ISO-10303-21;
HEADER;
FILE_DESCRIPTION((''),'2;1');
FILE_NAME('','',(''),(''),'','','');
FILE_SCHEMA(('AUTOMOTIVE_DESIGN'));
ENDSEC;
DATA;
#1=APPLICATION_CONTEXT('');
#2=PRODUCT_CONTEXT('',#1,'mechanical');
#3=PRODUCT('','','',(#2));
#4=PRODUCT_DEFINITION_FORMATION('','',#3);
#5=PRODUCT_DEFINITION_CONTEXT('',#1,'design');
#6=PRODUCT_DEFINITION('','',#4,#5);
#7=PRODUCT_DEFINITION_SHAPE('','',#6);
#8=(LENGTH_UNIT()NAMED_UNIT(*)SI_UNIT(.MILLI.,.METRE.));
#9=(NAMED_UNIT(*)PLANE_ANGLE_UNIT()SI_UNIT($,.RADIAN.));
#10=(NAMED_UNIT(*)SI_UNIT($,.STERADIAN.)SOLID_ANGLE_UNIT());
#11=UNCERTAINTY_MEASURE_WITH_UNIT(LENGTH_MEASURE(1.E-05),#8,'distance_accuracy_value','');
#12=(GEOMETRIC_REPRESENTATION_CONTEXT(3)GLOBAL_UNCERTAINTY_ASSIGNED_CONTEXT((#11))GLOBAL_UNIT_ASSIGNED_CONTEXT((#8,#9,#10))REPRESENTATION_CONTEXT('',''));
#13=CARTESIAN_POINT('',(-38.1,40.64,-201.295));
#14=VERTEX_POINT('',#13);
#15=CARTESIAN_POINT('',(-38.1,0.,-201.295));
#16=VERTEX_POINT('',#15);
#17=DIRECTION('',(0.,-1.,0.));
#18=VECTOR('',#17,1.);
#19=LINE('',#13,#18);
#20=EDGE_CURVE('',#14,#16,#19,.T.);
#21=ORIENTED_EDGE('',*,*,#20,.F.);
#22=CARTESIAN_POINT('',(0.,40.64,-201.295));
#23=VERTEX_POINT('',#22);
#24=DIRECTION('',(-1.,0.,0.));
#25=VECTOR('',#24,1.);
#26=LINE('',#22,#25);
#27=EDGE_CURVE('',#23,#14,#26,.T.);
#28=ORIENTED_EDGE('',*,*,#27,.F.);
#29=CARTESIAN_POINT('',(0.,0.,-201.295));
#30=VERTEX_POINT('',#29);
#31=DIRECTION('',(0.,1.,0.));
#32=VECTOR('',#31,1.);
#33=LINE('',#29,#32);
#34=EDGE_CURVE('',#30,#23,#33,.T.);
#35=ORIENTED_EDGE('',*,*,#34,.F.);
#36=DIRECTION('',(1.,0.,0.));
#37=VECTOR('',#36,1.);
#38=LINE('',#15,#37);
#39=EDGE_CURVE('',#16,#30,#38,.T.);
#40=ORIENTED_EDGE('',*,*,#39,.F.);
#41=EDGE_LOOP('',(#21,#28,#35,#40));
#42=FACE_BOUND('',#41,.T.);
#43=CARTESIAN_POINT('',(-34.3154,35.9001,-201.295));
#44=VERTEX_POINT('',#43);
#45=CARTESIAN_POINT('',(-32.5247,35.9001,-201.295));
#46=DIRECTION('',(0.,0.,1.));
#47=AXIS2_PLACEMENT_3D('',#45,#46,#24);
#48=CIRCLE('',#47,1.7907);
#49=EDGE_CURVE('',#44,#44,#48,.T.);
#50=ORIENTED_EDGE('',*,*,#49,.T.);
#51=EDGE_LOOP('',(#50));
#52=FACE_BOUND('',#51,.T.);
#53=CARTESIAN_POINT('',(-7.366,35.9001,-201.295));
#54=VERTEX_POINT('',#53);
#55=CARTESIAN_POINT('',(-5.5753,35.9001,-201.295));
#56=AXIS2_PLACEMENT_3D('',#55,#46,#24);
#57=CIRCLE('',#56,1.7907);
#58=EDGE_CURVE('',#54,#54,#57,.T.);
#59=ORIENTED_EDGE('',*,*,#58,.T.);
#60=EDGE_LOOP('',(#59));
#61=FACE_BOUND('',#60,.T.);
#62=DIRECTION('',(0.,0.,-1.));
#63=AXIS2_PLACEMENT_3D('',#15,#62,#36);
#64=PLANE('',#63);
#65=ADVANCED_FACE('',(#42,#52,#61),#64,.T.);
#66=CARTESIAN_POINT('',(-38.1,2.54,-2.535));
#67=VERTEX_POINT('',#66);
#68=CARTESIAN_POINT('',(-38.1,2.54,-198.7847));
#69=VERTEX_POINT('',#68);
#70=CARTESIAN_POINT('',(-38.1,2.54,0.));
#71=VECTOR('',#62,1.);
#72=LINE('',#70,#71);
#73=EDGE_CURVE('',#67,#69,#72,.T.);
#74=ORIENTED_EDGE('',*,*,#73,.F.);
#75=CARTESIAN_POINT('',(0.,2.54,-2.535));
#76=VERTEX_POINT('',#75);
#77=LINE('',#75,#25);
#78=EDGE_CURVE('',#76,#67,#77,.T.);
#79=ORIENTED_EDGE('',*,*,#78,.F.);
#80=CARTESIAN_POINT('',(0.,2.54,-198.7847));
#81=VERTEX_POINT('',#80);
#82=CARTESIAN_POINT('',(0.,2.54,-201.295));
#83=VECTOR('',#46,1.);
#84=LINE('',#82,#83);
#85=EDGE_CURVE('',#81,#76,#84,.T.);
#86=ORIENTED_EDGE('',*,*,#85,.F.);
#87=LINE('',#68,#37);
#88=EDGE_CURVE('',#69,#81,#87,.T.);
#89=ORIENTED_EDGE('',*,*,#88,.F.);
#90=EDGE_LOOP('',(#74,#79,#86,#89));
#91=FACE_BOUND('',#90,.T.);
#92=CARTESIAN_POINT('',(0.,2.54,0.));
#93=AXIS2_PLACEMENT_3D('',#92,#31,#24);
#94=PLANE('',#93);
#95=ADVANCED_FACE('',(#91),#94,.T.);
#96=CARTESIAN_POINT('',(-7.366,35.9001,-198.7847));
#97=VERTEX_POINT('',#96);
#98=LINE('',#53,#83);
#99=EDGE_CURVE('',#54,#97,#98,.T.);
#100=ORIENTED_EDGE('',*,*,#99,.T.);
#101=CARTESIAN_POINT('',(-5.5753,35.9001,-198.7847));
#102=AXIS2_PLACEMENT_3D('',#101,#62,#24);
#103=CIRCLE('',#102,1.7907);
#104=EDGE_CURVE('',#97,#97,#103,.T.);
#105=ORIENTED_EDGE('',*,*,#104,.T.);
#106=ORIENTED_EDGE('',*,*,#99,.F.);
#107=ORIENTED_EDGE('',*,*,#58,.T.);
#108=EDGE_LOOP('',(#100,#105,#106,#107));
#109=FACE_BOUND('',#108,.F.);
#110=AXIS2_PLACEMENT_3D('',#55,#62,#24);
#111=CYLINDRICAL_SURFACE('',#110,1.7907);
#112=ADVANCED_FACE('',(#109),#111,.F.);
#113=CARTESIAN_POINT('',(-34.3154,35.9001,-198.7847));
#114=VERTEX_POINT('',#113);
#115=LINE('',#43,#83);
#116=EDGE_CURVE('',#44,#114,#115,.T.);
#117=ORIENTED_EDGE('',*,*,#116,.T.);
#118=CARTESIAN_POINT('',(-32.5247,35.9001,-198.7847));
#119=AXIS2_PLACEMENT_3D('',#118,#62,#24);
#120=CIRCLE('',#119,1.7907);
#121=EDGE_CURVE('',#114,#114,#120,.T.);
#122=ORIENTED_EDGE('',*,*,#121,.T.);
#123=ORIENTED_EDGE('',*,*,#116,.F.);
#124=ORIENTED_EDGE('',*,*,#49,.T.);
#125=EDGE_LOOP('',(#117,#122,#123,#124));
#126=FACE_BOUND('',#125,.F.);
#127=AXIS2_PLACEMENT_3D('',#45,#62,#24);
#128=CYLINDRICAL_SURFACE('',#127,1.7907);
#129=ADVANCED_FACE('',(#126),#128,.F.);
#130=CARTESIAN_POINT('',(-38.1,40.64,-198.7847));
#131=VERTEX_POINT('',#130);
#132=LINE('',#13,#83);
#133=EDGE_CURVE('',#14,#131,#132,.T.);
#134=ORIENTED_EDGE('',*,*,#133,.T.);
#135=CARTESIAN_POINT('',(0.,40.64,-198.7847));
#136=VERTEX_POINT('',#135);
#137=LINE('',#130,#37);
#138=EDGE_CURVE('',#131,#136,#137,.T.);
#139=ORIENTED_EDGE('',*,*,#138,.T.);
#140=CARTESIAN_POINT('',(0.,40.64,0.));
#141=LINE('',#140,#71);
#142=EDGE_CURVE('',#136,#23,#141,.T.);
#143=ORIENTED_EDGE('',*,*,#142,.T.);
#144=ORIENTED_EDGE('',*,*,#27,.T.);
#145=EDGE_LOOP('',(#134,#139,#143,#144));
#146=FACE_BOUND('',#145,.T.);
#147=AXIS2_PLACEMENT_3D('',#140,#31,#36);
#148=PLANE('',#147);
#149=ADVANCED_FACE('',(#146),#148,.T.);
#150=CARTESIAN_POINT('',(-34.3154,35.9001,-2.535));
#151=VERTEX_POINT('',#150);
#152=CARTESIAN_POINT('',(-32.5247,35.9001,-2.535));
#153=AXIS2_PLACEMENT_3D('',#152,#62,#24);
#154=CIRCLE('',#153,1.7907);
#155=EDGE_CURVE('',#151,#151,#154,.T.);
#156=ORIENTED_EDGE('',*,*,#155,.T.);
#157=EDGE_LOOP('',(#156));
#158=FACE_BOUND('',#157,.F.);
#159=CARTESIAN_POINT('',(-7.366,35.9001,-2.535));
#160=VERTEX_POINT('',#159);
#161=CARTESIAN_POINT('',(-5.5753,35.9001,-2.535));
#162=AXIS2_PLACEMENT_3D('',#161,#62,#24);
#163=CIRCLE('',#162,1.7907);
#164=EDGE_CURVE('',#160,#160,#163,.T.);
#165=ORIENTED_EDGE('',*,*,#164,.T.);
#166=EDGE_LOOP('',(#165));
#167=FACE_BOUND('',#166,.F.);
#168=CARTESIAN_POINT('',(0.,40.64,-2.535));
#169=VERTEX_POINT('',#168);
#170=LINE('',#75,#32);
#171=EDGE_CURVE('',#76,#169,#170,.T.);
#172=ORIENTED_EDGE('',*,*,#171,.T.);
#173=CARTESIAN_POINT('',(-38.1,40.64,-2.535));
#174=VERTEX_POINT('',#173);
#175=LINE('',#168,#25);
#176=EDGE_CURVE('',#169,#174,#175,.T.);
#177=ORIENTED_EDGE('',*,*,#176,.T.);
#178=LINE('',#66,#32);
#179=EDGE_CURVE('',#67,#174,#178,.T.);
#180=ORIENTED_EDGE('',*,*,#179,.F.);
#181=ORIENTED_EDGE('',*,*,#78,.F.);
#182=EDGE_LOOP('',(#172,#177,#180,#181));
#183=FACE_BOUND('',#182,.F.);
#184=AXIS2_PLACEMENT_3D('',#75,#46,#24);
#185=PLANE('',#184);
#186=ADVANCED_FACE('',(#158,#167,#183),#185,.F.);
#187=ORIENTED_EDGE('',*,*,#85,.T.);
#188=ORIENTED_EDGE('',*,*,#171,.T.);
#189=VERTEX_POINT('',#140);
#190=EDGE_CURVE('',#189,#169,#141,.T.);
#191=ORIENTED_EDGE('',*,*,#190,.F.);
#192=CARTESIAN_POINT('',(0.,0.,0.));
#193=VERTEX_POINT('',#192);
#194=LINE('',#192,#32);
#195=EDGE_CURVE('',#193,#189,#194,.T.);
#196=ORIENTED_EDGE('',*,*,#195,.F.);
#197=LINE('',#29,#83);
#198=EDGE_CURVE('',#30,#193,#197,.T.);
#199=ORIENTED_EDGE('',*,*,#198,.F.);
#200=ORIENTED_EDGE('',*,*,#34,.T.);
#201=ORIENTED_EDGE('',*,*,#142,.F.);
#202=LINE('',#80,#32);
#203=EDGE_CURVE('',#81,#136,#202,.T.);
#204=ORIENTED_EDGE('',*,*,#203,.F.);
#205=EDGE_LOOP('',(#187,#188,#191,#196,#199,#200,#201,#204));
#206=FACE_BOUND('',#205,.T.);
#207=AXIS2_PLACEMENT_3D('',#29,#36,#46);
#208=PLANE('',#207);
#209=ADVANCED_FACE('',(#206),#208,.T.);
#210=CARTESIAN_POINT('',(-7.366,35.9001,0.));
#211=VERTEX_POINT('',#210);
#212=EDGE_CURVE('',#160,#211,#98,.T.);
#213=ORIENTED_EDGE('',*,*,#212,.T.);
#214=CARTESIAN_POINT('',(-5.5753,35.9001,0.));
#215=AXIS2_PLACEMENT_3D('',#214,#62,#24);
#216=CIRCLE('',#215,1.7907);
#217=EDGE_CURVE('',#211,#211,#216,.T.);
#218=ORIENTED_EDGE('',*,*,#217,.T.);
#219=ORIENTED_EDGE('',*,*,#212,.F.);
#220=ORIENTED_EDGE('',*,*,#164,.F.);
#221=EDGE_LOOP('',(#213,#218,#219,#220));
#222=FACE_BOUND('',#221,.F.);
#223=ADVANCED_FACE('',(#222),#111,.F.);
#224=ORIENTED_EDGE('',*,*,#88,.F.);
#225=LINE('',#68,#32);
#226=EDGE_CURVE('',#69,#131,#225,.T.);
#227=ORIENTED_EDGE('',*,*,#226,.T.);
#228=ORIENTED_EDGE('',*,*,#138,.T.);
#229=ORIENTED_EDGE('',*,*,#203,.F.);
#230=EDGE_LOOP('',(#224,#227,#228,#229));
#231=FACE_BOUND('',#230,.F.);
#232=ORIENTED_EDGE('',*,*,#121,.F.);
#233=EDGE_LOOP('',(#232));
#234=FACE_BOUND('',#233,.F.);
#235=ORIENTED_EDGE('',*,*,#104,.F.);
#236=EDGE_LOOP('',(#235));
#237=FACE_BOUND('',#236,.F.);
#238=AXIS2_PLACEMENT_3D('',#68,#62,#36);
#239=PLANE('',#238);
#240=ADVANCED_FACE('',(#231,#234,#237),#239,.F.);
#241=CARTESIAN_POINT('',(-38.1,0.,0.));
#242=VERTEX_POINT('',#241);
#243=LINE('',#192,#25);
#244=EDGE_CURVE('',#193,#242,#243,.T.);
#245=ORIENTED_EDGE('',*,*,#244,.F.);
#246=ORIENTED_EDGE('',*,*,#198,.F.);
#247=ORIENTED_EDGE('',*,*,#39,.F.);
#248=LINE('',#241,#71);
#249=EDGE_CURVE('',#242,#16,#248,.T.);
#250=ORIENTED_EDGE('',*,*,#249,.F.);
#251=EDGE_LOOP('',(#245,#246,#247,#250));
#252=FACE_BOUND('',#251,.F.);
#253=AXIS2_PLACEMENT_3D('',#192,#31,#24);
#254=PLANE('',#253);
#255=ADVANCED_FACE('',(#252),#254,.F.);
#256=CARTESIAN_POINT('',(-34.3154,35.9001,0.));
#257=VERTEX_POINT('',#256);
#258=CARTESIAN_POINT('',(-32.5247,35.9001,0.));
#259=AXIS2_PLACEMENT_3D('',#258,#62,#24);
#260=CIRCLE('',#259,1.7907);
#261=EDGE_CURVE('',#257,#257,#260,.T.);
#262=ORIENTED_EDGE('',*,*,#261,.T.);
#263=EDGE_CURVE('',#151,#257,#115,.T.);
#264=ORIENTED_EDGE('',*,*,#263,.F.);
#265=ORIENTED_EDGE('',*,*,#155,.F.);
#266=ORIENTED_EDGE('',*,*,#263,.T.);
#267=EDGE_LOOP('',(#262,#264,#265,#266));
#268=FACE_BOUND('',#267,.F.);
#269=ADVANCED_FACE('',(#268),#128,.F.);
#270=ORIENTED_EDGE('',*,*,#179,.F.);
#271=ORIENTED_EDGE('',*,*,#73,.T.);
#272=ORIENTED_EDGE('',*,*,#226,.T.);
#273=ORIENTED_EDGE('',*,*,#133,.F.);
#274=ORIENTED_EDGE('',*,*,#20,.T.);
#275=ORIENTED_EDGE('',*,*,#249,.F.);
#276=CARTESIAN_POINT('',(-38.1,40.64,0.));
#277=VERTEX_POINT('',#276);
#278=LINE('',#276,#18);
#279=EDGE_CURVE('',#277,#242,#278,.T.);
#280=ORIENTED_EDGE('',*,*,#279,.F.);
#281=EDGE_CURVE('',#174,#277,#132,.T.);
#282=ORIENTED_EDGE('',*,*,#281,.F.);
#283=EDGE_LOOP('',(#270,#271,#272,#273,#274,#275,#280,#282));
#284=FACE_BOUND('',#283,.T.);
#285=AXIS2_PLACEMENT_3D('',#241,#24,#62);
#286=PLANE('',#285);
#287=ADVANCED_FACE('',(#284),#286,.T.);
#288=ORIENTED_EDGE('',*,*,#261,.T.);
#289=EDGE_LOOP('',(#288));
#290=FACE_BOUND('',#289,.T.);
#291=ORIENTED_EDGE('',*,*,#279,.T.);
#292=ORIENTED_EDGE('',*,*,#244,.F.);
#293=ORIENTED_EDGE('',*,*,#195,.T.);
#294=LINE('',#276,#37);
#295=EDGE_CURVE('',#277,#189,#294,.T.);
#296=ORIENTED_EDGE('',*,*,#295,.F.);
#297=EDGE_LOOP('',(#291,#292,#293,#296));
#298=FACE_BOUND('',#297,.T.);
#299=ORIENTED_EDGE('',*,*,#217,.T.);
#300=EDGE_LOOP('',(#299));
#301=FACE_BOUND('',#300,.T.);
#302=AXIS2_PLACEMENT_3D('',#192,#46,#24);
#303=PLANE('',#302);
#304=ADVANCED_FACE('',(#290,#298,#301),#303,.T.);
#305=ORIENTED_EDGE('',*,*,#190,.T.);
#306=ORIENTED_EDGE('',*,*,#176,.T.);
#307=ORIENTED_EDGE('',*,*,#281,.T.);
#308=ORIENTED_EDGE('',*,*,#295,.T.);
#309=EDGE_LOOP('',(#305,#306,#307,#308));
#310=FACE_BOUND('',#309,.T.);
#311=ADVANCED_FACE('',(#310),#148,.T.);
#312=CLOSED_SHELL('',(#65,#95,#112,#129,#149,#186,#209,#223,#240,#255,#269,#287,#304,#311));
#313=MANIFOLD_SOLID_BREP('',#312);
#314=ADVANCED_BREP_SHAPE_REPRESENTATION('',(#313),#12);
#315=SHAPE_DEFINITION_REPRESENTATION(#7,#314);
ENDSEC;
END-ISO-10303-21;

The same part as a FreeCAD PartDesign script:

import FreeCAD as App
import Part
import Sketcher
Q = App.Units.Quantity

doc = App.newDocument("Part")
params = doc.addObject("Spreadsheet::Sheet", "Params")
for row, (alias, value) in enumerate([
    ("sketch1_width", "1.5 in"),
    ("sketch1_height", "7.925 in"),
    ("pad1_length", "0.1 in"),
    ("sketch2_width", "1.5 in"),
    ("pad2_length", "1.5 in"),
    ("sketch3_diameter", "0.141 in"),
    ("pocket1_length", "9.6875 in"),
], start=1):
    params.set(f"A{row}", alias)
    params.set(f"B{row}", "=" + value)
    params.setAlias(f"B{row}", alias)

body = doc.addObject("PartDesign::Body", "Body")

sketch1 = body.newObject("Sketcher::SketchObject", "Sketch")
sketch1.AttachmentSupport = (doc.getObject("XZ_Plane"), [""])
sketch1.MapMode = "FlatFace"
sketch1.addGeometry([
    Part.LineSegment(App.Vector(-38, 0, 0), App.Vector(0, 0, 0)),
    Part.LineSegment(App.Vector(0, 0, 0), App.Vector(0, -201, 0)),
    Part.LineSegment(App.Vector(0, -201, 0), App.Vector(-38, -201, 0)),
    Part.LineSegment(App.Vector(-38, -201, 0), App.Vector(-38, 0, 0)),
], False)
sketch1.addConstraint([
    Sketcher.Constraint("Coincident", 0, 2, 1, 1),
    Sketcher.Constraint("Coincident", 1, 2, 2, 1),
    Sketcher.Constraint("Coincident", 2, 2, 3, 1),
    Sketcher.Constraint("Coincident", 3, 2, 0, 1),
    Sketcher.Constraint("Horizontal", 0),
    Sketcher.Constraint("Vertical", 1),
    Sketcher.Constraint("Horizontal", 2),
    Sketcher.Constraint("Vertical", 3),
    Sketcher.Constraint("Coincident", 0, 2, -1, 1),
    Sketcher.Constraint("DistanceX", 0, 1, 0, 2, Q("1.5 in")),
    Sketcher.Constraint("DistanceY", 1, 2, 1, 1, Q("7.925 in")),
])
sketch1.setExpression("Constraints[9]", "Params.sketch1_width")
sketch1.setExpression("Constraints[10]", "Params.sketch1_height")
pad1 = body.newObject("PartDesign::Pad", "Pad")
pad1.Profile = sketch1
pad1.setExpression("Length", "Params.pad1_length")
pad1.Reversed = True

sketch2 = body.newObject("Sketcher::SketchObject", "Sketch001")
sketch2.AttachmentSupport = (doc.getObject("XZ_Plane"), [""])
sketch2.MapMode = "FlatFace"
sketch2.AttachmentOffset = App.Placement(App.Vector(0, 0, -0.1 * 25.4), App.Rotation())
sketch2.addGeometry([
    Part.LineSegment(App.Vector(0, -201.3, 0), App.Vector(-38.1, -201.3, 0)),
    Part.LineSegment(App.Vector(-38.1, -201.3, 0), App.Vector(-38.1, -198.8, 0)),
    Part.LineSegment(App.Vector(-38.1, -198.8, 0), App.Vector(0, -198.8, 0)),
    Part.LineSegment(App.Vector(0, -198.8, 0), App.Vector(0, -201.3, 0)),
    Part.LineSegment(App.Vector(0, -2.5, 0), App.Vector(-38.1, -2.5, 0)),
    Part.LineSegment(App.Vector(-38.1, -2.5, 0), App.Vector(-38.1, 0, 0)),
    Part.LineSegment(App.Vector(-38.1, 0, 0), App.Vector(0, 0, 0)),
    Part.LineSegment(App.Vector(0, 0, 0), App.Vector(0, -2.5, 0)),
], False)
sketch2.addConstraint([
    Sketcher.Constraint("Coincident", 0, 2, 1, 1),
    Sketcher.Constraint("Coincident", 1, 2, 2, 1),
    Sketcher.Constraint("Coincident", 2, 2, 3, 1),
    Sketcher.Constraint("Coincident", 3, 2, 0, 1),
    Sketcher.Constraint("Coincident", 4, 2, 5, 1),
    Sketcher.Constraint("Coincident", 5, 2, 6, 1),
    Sketcher.Constraint("Coincident", 6, 2, 7, 1),
    Sketcher.Constraint("Coincident", 7, 2, 4, 1),
    Sketcher.Constraint("Horizontal", 0),
    Sketcher.Constraint("Vertical", 1),
    Sketcher.Constraint("Horizontal", 2),
    Sketcher.Constraint("Vertical", 3),
    Sketcher.Constraint("Horizontal", 4),
    Sketcher.Constraint("Vertical", 5),
    Sketcher.Constraint("Horizontal", 6),
    Sketcher.Constraint("Vertical", 7),
    Sketcher.Constraint("Coincident", 6, 2, -1, 1),
    Sketcher.Constraint("PointOnObject", 2, 2, -2),
    Sketcher.Constraint("Vertical", 1, 2, 4, 2),
    Sketcher.Constraint("DistanceX", 0, 2, 0, 1, Q("1.5 in")),
    Sketcher.Constraint("DistanceY", 5, 1, 5, 2, Q("0.0998 in")),
    Sketcher.Constraint("DistanceY", 0, 2, -1, 1, Q("7.925 in")),
    Sketcher.Constraint("DistanceY", 1, 1, 1, 2, 2.5103),
])
sketch2.setExpression("Constraints[19]", "Params.sketch2_width")
pad2 = body.newObject("PartDesign::Pad", "Pad001")
pad2.Profile = sketch2
pad2.setExpression("Length", "Params.pad2_length")
pad2.Reversed = True

sketch3 = body.newObject("Sketcher::SketchObject", "Sketch002")
sketch3.AttachmentSupport = (doc.getObject("XY_Plane"), [""])
sketch3.MapMode = "FlatFace"
sketch3.AttachmentOffset = App.Placement(App.Vector(0, 0, -7.925 * 25.4), App.Rotation())
sketch3.addGeometry([
    Part.Circle(App.Vector(-32.5, 35.9, 0), App.Vector(0, 0, 1), 1.8),
    Part.Circle(App.Vector(-5.6, 35.9, 0), App.Vector(0, 0, 1), 1.8),
], False)
sketch3.addConstraint([
    Sketcher.Constraint("Equal", 0, 1),
    Sketcher.Constraint("Horizontal", 0, 3, 1, 3),
    Sketcher.Constraint("Diameter", 0, Q("0.141 in")),
    Sketcher.Constraint("DistanceX", 0, 3, 1, 3, Q("1.061 in")),
    Sketcher.Constraint("DistanceX", 0, 3, -1, 1, Q("1.2805 in")),
    Sketcher.Constraint("DistanceY", -1, 1, 0, 3, Q("1.4134 in")),
])
sketch3.setExpression("Constraints[2]", "Params.sketch3_diameter")
pocket1 = body.newObject("PartDesign::Pocket", "Pocket")
pocket1.Profile = sketch3
pocket1.setExpression("Length", "Params.pocket1_length")
pocket1.Reversed = True

doc.recompute()
